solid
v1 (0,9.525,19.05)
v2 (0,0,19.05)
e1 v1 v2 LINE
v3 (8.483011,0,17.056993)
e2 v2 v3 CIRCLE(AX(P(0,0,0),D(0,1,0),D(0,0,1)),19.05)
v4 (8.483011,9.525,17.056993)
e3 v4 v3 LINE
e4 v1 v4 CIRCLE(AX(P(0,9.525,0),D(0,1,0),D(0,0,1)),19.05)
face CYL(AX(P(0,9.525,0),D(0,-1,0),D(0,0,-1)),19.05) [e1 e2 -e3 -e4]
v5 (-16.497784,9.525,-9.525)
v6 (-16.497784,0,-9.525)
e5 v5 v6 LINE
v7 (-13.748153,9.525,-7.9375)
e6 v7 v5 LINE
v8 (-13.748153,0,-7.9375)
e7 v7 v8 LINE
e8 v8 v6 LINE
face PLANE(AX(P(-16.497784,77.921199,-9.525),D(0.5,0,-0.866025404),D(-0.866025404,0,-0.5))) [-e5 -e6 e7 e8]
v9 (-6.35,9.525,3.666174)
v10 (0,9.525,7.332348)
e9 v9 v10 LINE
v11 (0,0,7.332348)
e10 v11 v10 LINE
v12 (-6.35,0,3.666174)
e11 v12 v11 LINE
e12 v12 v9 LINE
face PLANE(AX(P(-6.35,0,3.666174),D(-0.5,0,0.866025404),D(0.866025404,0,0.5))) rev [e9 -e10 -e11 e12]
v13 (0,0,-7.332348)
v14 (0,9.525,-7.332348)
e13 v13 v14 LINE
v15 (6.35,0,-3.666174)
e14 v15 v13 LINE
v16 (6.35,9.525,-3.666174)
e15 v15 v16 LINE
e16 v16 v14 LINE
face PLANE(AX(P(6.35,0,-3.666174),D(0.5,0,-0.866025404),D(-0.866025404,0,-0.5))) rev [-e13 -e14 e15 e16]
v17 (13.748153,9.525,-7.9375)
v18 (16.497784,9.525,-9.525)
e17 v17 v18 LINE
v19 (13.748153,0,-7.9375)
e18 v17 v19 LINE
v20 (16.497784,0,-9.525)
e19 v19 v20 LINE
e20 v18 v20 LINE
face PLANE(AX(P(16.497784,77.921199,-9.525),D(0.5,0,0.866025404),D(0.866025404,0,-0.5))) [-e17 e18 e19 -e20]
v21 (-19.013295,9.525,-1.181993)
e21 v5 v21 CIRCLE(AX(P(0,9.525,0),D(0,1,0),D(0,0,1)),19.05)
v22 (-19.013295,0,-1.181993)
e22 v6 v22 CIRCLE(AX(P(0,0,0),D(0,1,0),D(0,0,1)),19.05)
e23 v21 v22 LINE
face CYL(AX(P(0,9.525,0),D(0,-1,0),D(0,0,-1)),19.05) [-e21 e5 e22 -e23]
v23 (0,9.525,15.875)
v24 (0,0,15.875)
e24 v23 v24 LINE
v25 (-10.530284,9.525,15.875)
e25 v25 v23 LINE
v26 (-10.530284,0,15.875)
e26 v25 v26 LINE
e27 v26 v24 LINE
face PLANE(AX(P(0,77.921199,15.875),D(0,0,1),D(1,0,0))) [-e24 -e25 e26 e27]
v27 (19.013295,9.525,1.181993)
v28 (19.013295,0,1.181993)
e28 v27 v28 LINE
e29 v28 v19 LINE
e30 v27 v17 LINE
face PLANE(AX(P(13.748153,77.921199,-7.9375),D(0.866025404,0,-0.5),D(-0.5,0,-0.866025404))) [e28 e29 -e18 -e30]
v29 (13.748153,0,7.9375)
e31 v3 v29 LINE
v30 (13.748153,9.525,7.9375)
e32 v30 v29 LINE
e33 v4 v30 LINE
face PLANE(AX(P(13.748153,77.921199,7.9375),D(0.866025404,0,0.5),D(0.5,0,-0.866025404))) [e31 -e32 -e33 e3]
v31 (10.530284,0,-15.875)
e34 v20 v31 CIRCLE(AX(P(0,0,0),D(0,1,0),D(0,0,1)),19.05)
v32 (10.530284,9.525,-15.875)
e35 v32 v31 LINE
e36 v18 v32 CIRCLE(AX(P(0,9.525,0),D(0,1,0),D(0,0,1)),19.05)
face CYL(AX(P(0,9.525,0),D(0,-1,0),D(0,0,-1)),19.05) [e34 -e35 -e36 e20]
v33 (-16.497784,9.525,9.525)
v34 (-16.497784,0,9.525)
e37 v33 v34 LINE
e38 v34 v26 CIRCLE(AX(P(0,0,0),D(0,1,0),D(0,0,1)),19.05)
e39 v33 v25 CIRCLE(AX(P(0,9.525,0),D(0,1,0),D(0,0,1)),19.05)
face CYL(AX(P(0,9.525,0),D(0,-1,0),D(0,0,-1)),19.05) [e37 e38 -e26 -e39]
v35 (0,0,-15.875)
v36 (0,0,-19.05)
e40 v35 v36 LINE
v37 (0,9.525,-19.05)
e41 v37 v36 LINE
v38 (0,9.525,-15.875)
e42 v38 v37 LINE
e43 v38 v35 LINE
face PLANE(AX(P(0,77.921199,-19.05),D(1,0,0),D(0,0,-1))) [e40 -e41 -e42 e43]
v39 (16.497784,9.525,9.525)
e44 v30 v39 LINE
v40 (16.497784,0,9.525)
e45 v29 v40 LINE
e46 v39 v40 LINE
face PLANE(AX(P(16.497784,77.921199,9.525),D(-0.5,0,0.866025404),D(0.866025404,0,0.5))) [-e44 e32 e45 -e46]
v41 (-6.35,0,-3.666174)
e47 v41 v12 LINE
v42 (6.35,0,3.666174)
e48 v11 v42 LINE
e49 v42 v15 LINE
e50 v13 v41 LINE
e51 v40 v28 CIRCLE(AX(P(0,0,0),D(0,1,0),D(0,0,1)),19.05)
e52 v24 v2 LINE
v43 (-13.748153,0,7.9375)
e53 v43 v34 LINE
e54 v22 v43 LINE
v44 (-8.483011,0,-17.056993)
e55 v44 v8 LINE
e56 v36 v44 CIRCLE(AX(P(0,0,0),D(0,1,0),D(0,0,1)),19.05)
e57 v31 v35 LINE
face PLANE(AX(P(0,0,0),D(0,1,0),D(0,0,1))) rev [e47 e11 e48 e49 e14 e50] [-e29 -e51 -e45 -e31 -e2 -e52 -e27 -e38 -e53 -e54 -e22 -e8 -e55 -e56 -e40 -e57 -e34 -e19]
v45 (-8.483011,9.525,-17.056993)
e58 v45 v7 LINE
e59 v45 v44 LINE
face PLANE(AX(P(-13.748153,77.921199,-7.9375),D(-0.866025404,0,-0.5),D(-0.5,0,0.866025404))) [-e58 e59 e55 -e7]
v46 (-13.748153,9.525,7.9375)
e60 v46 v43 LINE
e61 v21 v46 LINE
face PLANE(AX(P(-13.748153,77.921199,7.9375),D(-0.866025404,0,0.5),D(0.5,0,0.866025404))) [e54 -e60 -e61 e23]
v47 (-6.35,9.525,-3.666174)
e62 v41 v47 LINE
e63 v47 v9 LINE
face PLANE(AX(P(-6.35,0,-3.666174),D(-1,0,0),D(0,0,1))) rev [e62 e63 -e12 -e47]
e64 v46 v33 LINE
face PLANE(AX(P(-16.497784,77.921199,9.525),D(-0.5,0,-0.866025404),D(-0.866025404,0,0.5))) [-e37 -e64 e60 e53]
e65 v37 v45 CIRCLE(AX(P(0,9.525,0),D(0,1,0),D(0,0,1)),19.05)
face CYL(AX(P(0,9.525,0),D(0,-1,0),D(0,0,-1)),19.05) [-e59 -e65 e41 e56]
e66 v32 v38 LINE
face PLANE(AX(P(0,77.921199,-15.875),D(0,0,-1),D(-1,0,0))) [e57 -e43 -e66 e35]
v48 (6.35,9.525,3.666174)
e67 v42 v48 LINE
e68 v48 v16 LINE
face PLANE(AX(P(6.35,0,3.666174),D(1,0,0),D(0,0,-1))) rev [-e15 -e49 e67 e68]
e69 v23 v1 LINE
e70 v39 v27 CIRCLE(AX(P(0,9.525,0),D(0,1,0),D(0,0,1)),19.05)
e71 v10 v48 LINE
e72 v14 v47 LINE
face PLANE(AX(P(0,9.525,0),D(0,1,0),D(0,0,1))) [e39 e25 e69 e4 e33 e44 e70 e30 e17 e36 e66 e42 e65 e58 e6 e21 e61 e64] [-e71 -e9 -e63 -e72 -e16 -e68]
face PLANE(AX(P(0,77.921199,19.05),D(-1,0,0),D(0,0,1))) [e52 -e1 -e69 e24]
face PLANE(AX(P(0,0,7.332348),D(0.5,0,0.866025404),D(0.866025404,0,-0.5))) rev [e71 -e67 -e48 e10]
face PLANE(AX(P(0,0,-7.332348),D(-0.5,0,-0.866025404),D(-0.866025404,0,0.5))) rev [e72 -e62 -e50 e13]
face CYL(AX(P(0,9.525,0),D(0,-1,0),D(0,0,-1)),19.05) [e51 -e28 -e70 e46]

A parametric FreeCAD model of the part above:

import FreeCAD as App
import Part
import Sketcher

V = App.Vector
Q = App.Units.Quantity

doc = App.newDocument("Part")
body = doc.addObject("PartDesign::Body", "Body")

# Sketch on XZ plane
sketch1 = body.newObject("Sketcher::SketchObject", "Sketch")
sketch1.AttachmentSupport = (doc.getObject("XZ_Plane"), [""])
sketch1.MapMode = "FlatFace"
sketch1.addGeometry(Part.Circle(V(0, 0, 0), V(0, 0, 1), 19), False)
sketch1.addConstraint([
    Sketcher.Constraint("Coincident", 0, 3, -1, 1),
    Sketcher.Constraint("Diameter", 0, Q("1.5 in")),
])
pad1 = body.newObject("PartDesign::Pad", "Pad")
pad1.Profile = sketch1
pad1.Length = Q("0.375 in")
pad1.Reversed = True

# Sketch on XZ plane
sketch2 = body.newObject("Sketcher::SketchObject", "Sketch001")
sketch2.AttachmentSupport = (doc.getObject("XZ_Plane"), [""])
sketch2.MapMode = "FlatFace"
sketch2.AttachmentOffset = App.Placement(V(0, 0, 1), App.Rotation())
sketch2.addGeometry([
    Part.LineSegment(V(0, -121, 0), V(0, -16, 0)),  # 0
    Part.LineSegment(V(0, -16, 0), V(112, -16, 0)),  # 1
    Part.LineSegment(V(112, -16, 0), V(251, -164, 0)),  # 2
    Part.LineSegment(V(251, -164, 0), V(139, -269, 0)),  # 3
    Part.LineSegment(V(139, -269, 0), V(0, -121, 0)),  # 4
], False)
sketch2.addConstraint([
    Sketcher.Constraint("Coincident", 0, 2, 1, 1),
    Sketcher.Constraint("Coincident", 1, 2, 2, 1),
    Sketcher.Constraint("Coincident", 2, 2, 3, 1),
    Sketcher.Constraint("Coincident", 3, 2, 4, 1),
    Sketcher.Constraint("Coincident", 4, 2, 0, 1),
    Sketcher.Constraint("Vertical", 0),
    Sketcher.Constraint("Horizontal", 1),
    Sketcher.Constraint("PointOnObject", 0, 2, -2),
    Sketcher.Constraint("Perpendicular", 2, 3),
    Sketcher.Constraint("Perpendicular", 3, 4),
    Sketcher.Constraint("Equal", 2, 4),
    Sketcher.Constraint("DistanceY", 0, 2, -1, 1, Q("0.625 in")),
    Sketcher.Constraint("Distance", 3, Q("153.374101 mm")),
    Sketcher.Constraint("DistanceY", 0, 1, 0, 2, Q("104.711852 mm")),
    Sketcher.Constraint("DistanceY", 2, 2, -1, 1, Q("164.25656 mm")),
])
pocket1 = body.newObject("PartDesign::Pocket", "Pocket")
pocket1.Profile = sketch2
pocket1.Length = 11.525
doc.recompute()

polarpattern = body.newObject("PartDesign::PolarPattern", "PolarPattern")
polarpattern.Originals = [pocket1]
polarpattern.Axis = (doc.getObject("Y_Axis"), [""])
polarpattern.Angle = 360
polarpattern.Occurrences = 6
body.Tip = polarpattern

# Sketch on XZ plane
sketch3 = body.newObject("Sketcher::SketchObject", "Sketch002")
sketch3.AttachmentSupport = (doc.getObject("XZ_Plane"), [""])
sketch3.MapMode = "FlatFace"
sketch3.AttachmentOffset = App.Placement(V(0, 0, -0.375 * 25.4), App.Rotation())
sketch3.addGeometry([
    Part.LineSegment(V(0, -7, 0), V(-6, -4, 0)),  # 0
    Part.LineSegment(V(-6, -4, 0), V(-6, 4, 0)),  # 1
    Part.LineSegment(V(-6, 4, 0), V(0, 7, 0)),  # 2
    Part.LineSegment(V(0, 7, 0), V(6, 4, 0)),  # 3
    Part.LineSegment(V(6, 4, 0), V(6, -4, 0)),  # 4
    Part.LineSegment(V(6, -4, 0), V(0, -7, 0)),  # 5
], False)
sketch3.addConstraint([
    Sketcher.Constraint("Coincident", 0, 2, 1, 1),
    Sketcher.Constraint("Coincident", 1, 2, 2, 1),
    Sketcher.Constraint("Coincident", 2, 2, 3, 1),
    Sketcher.Constraint("Coincident", 3, 2, 4, 1),
    Sketcher.Constraint("Coincident", 4, 2, 5, 1),
    Sketcher.Constraint("Coincident", 5, 2, 0, 1),
    Sketcher.Constraint("Vertical", 1),
    Sketcher.Constraint("Vertical", 4),
    Sketcher.Constraint("Symmetric", 0, 2, 3, 2, -1, 1),
    Sketcher.Constraint("Symmetric", 2, 2, 5, 2, -1, 1),
    Sketcher.Constraint("PointOnObject", 2, 2, -2),
    Sketcher.Constraint("Parallel", 2, 5),
    Sketcher.Constraint("Horizontal", 1, 2, 3, 2),
    Sketcher.Constraint("Angle", 0, Q("150 deg")),
    Sketcher.Constraint("DistanceX", 1, 2, 3, 2, Q("0.5 in")),
    Sketcher.Constraint("DistanceY", 1, 1, 1, 2, Q("7.332348 mm")),
])
pocket2 = body.newObject("PartDesign::Pocket", "Pocket001")
pocket2.Profile = sketch3
pocket2.Type = "ThroughAll"
pocket2.Reversed = True

doc.recompute()
